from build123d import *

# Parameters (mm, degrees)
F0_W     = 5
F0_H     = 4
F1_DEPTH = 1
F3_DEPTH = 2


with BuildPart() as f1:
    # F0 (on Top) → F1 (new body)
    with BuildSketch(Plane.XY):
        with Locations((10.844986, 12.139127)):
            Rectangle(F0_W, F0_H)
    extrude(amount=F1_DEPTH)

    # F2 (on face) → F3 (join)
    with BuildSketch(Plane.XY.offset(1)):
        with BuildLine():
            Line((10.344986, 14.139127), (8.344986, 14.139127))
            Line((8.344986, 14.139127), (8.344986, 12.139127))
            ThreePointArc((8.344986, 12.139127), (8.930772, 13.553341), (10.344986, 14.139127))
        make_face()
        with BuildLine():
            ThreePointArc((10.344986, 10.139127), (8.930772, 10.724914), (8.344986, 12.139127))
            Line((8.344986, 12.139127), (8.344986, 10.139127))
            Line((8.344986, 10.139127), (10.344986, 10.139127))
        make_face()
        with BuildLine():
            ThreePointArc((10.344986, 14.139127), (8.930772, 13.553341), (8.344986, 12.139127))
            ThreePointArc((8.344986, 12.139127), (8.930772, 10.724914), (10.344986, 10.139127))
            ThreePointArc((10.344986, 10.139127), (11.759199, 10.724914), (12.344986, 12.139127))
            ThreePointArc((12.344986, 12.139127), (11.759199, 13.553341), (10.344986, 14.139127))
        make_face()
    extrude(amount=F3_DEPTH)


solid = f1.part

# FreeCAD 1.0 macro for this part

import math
import FreeCAD as App
import Part
import Sketcher
from FreeCAD import Vector
Q = App.Units.Quantity


def add_polygon(sketch, points):
    """Adds a closed chain of lines whose ends are joined by coincident constraints."""
    first, n = sketch.GeometryCount, len(points)
    for a, b in zip(points, points[1:] + points[:1]):
        sketch.addGeometry(Part.LineSegment(App.Vector(*a, 0), App.Vector(*b, 0)), False)
    for i in range(n):
        sketch.addConstraint(Sketcher.Constraint("Coincident", first + i, 2, first + (i + 1) % n, 1))

doc = App.newDocument("Part")
params = doc.addObject("Spreadsheet::Sheet", "Params")
for row, (alias, value) in enumerate([
    ("sketch1_width", "5 mm"),
    ("sketch1_height", "4 mm"),
    ("pad1_length", "1 mm"),
    ("sketch2_radius", "2.000002 mm"),
    ("sketch2_width", "2 mm"),
    ("pad2_length", "2 mm"),
], start=1):
    params.set(f"A{row}", alias)
    params.set(f"B{row}", "=" + value)
    params.setAlias(f"B{row}", alias)

body = doc.addObject("PartDesign::Body", "Body")

# Sketch on XY plane
sketch1 = body.newObject("Sketcher::SketchObject", "Sketch")
sketch1.AttachmentSupport = (doc.getObject("XY_Plane"), [""])
sketch1.MapMode = "FlatFace"
add_polygon(sketch1, [(8.344986, 14.139127), (8.344986, 10.139127), (13.344986, 10.139127), (13.344986, 14.139127)])  # lines 0-3
sketch1.addConstraint([
    Sketcher.Constraint("Vertical", 0),
    Sketcher.Constraint("Horizontal", 1),
    Sketcher.Constraint("Vertical", 2),
    Sketcher.Constraint("Horizontal", 3),
    Sketcher.Constraint("DistanceX", 1, 1, 1, 2, Q("5 mm")),
    Sketcher.Constraint("DistanceY", 0, 2, 0, 1, Q("4 mm")),
    Sketcher.Constraint("DistanceX", -1, 1, 0, 2, Q("8.344986 mm")),
    Sketcher.Constraint("DistanceY", -1, 1, 0, 2, Q("10.139127 mm")),
])
sketch1.setExpression("Constraints[8]", "Params.sketch1_width")
sketch1.setExpression("Constraints[9]", "Params.sketch1_height")
pad1 = body.newObject("PartDesign::Pad", "Pad")
pad1.Profile = sketch1
pad1.setExpression("Length", "Params.pad1_length")

# Sketch on XY plane
sketch2 = body.newObject("Sketcher::SketchObject", "Sketch001")
sketch2.AttachmentSupport = (doc.getObject("XY_Plane"), [""])
sketch2.MapMode = "FlatFace"
sketch2.AttachmentOffset = App.Placement(Vector(0, 0, 1), App.Rotation())
sketch2.addGeometry([
    Part.LineSegment(Vector(10.344986, 14.139127, 0), Vector(8.344986, 14.139127, 0)),  # 0
    Part.LineSegment(Vector(8.344986, 14.139127, 0), Vector(8.344986, 10.139127, 0)),  # 1
    Part.LineSegment(Vector(8.344986, 10.139127, 0), Vector(10.344986, 10.139127, 0)),  # 2
    Part.ArcOfCircle(Part.Circle(Vector(10.344984, 12.139129, 0), Vector(0, 0, 1), 2.000002), math.radians(-89.999945), math.radians(-0.000055)),  # 3
    Part.ArcOfCircle(Part.Circle(Vector(10.344986, 12.139127, 0), Vector(0, 0, 1), 2), math.radians(0.000006), math.radians(89.999994)),  # 4
], False)
sketch2.addConstraint([
    Sketcher.Constraint("Coincident", 0, 2, 1, 1),
    Sketcher.Constraint("Coincident", 1, 2, 2, 1),
    Sketcher.Constraint("Tangent", 2, 2, 3, 1),
    Sketcher.Constraint("Tangent", 3, 2, 4, 1),
    Sketcher.Constraint("Tangent", 4, 2, 0, 1),
    Sketcher.Constraint("Horizontal", 0),
    Sketcher.Constraint("Vertical", 1),
    Sketcher.Constraint("Horizontal", 2),
    Sketcher.Constraint("Equal", 3, 4),
    Sketcher.Constraint("Horizontal", 4, 3, 3, 2),
    Sketcher.Constraint("Radius", 3, Q("2.000002 mm")),
    Sketcher.Constraint("DistanceX", 0, 2, 0, 1, Q("2 mm")),
    Sketcher.Constraint("DistanceY", -1, 1, 3, 3, Q("12.139129 mm")),
    Sketcher.Constraint("DistanceX", -1, 1, 3, 3, Q("10.344984 mm")),
])
sketch2.setExpression("Constraints[10]", "Params.sketch2_radius")
sketch2.setExpression("Constraints[11]", "Params.sketch2_width")
pad2 = body.newObject("PartDesign::Pad", "Pad001")
pad2.Profile = sketch2
pad2.setExpression("Length", "Params.pad2_length")

doc.recompute()
